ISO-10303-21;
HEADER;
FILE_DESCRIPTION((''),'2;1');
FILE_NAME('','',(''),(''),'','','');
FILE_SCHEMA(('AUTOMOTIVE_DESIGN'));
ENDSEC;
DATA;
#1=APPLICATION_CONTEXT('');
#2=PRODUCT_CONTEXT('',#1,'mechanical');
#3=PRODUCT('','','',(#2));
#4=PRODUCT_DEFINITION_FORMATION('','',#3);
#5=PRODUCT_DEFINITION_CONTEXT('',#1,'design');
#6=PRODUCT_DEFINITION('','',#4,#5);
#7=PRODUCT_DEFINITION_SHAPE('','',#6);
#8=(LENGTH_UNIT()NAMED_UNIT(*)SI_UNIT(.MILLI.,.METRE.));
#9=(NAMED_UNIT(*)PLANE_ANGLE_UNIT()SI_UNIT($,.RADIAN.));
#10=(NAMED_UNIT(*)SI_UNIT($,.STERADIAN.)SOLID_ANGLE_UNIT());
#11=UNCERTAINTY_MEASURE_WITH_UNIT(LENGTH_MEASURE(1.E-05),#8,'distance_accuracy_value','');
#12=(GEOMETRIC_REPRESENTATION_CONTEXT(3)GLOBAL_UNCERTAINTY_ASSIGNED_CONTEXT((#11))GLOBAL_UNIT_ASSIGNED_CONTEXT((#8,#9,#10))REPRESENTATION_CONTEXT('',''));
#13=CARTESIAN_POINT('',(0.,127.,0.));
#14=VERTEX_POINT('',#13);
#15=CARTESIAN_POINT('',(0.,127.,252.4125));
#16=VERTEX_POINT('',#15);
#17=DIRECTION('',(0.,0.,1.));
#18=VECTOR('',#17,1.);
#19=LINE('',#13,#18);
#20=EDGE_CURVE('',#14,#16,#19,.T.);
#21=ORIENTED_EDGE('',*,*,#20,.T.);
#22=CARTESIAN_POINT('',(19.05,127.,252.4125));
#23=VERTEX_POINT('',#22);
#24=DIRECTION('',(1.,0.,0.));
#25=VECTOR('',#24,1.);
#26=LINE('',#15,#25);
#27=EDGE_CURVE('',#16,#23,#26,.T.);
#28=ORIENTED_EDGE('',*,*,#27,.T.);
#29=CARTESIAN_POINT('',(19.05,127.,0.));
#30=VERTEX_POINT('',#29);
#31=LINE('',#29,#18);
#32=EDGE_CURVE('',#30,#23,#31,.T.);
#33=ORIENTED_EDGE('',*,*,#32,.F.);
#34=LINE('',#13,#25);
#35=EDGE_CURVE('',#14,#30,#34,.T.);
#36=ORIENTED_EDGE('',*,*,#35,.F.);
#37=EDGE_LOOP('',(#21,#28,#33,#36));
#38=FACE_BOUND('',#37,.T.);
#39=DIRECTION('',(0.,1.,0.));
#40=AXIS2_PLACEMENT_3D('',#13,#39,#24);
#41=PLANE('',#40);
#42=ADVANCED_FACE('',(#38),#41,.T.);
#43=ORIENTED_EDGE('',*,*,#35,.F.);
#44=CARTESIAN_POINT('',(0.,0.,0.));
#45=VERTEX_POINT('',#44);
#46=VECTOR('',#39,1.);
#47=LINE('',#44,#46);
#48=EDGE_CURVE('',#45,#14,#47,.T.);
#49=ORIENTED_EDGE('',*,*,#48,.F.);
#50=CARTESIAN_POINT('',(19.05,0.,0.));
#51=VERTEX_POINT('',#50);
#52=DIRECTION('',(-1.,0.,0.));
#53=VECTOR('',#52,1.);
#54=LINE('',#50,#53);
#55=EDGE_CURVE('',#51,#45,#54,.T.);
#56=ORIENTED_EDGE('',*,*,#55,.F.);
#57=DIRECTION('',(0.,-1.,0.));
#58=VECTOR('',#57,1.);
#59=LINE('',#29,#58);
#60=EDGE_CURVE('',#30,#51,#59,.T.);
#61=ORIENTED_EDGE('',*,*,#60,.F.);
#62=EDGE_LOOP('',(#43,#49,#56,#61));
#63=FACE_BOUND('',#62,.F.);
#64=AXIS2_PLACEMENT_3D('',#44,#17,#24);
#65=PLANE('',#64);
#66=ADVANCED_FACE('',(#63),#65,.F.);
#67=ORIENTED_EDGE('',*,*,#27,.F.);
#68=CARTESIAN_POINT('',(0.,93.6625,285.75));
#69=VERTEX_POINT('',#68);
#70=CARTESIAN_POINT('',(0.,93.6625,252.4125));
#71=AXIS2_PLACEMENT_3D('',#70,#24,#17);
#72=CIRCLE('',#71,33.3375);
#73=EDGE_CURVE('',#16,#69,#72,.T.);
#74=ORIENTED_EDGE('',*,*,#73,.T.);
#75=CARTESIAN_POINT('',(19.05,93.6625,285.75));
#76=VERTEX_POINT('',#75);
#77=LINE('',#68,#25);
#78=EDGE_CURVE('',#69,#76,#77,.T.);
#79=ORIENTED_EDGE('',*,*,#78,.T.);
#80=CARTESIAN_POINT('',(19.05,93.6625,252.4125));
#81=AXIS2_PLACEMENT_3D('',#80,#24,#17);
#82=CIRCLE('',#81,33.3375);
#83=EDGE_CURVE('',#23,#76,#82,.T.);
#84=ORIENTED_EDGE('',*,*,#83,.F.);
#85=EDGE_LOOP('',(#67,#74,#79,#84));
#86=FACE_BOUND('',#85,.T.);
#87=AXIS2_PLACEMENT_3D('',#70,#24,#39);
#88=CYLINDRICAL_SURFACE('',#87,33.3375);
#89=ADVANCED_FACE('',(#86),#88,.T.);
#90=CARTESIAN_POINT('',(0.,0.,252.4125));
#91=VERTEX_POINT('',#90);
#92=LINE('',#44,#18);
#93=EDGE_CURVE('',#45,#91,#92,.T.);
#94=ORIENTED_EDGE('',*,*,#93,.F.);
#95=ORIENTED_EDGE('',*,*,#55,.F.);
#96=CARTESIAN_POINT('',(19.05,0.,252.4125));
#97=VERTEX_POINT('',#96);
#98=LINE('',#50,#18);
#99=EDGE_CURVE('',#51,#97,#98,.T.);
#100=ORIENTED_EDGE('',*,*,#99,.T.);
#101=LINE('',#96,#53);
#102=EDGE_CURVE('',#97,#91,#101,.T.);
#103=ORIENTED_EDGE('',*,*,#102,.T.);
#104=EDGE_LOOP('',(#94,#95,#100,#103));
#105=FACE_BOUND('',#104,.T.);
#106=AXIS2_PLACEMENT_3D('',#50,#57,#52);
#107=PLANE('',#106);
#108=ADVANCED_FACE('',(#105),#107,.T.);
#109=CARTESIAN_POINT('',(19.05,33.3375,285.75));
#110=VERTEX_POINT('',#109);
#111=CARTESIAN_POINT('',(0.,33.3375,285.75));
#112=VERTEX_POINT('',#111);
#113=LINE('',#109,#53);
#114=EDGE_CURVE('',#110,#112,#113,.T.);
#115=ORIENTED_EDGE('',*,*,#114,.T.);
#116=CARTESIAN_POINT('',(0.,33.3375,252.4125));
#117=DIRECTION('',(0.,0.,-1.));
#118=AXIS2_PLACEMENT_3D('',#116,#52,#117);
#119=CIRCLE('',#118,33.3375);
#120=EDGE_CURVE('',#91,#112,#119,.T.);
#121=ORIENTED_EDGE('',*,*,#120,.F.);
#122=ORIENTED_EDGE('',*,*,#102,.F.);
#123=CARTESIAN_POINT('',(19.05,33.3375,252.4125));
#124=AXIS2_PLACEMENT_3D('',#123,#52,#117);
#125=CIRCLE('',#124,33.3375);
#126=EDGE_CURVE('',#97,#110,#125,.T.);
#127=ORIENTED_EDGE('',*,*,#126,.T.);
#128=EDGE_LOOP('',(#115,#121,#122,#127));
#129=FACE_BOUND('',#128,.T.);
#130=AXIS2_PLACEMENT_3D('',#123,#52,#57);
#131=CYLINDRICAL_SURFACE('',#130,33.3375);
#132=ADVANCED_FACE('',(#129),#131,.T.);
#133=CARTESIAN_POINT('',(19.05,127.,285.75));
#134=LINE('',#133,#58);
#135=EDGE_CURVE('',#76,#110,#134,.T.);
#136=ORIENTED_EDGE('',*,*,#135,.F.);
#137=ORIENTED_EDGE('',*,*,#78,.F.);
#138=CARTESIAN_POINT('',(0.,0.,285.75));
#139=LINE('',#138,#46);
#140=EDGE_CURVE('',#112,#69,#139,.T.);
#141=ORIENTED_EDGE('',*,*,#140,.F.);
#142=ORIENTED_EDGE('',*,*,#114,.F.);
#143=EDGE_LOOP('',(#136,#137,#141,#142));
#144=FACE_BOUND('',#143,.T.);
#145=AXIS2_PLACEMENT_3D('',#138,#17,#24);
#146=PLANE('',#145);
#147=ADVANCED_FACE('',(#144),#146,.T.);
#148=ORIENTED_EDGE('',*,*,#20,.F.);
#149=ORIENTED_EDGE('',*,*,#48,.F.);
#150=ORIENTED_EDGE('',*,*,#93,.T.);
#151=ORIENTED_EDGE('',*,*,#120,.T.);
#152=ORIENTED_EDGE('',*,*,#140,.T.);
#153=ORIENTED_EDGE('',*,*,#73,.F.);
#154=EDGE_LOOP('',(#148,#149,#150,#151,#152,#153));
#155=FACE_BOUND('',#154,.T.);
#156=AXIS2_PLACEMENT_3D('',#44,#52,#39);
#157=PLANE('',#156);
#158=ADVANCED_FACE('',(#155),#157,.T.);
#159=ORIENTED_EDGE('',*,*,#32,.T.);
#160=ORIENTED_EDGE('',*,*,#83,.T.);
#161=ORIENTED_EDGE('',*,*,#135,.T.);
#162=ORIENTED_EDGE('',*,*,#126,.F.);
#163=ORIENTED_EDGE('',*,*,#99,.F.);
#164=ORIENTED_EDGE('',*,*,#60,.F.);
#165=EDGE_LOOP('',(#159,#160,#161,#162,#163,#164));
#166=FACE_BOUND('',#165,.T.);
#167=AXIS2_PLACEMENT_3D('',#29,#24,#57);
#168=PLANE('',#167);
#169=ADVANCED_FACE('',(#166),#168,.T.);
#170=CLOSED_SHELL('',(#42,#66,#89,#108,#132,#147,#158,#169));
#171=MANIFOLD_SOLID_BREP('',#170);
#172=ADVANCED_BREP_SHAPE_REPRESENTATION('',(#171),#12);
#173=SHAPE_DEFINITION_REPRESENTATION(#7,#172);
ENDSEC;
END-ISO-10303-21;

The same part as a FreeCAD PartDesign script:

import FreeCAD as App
import Part
import Sketcher
Q = App.Units.Quantity


def edges_at(feature, points):
    """Names of the edges that pass closest to the given points."""
    edges = feature.Shape.Edges
    near = lambda p: min(range(len(edges)), key=lambda i: edges[i].distToShape(Part.Vertex(*p))[0])
    return sorted({f"Edge{near(p) + 1}" for p in points})

doc = App.newDocument("Part")
params = doc.addObject("Spreadsheet::Sheet", "Params")
for row, (alias, value) in enumerate([
    ("sketch1_height", "5 in"),
    ("sketch1_width", "0.75 in"),
    ("pad1_length", "11.25 in"),
    ("fillet_radius", "1.3125 in"),
], start=1):
    params.set(f"A{row}", alias)
    params.set(f"B{row}", "=" + value)
    params.setAlias(f"B{row}", alias)

body = doc.addObject("PartDesign::Body", "Body")

# Sketch on XY plane
sketch1 = doc.addObject("Sketcher::SketchObject", "Sketch")
body.addObject(sketch1)
sketch1.AttachmentSupport = (doc.XY_Plane, [""])
sketch1.MapMode = "FlatFace"
sketch1.addGeometry([
    Part.LineSegment(App.Vector(0, 127, 0), App.Vector(0, 0, 0)),
    Part.LineSegment(App.Vector(0, 0, 0), App.Vector(19, 0, 0)),
    Part.LineSegment(App.Vector(19, 0, 0), App.Vector(19, 127, 0)),
    Part.LineSegment(App.Vector(19, 127, 0), App.Vector(0, 127, 0)),
], False)
sketch1.addConstraint([
    Sketcher.Constraint("Coincident", 0, 2, 1, 1),
    Sketcher.Constraint("Coincident", 1, 2, 2, 1),
    Sketcher.Constraint("Coincident", 2, 2, 3, 1),
    Sketcher.Constraint("Coincident", 3, 2, 0, 1),
    Sketcher.Constraint("Vertical", 0),
    Sketcher.Constraint("Horizontal", 1),
    Sketcher.Constraint("Vertical", 2),
    Sketcher.Constraint("Horizontal", 3),
    Sketcher.Constraint("Coincident", 0, 2, -1, 1),
    Sketcher.Constraint("DistanceY", 0, 2, 0, 1, Q("5 in")),
    Sketcher.Constraint("DistanceX", 1, 1, 1, 2, Q("0.75 in")),
])
sketch1.setExpression("Constraints[9]", "Params.sketch1_height")
sketch1.setExpression("Constraints[10]", "Params.sketch1_width")
pad1 = doc.addObject("PartDesign::Pad", "Pad")
body.addObject(pad1)
pad1.Profile = sketch1
pad1.setExpression("Length", "Params.pad1_length")
doc.recompute()

fillet = doc.addObject("PartDesign::Fillet", "Fillet")
body.addObject(fillet)
fillet.Base = (pad1, edges_at(pad1, [(9.525, 0, 285.75), (9.525, 127, 285.75)]))
fillet.setExpression("Radius", "Params.fillet_radius")

doc.recompute()
